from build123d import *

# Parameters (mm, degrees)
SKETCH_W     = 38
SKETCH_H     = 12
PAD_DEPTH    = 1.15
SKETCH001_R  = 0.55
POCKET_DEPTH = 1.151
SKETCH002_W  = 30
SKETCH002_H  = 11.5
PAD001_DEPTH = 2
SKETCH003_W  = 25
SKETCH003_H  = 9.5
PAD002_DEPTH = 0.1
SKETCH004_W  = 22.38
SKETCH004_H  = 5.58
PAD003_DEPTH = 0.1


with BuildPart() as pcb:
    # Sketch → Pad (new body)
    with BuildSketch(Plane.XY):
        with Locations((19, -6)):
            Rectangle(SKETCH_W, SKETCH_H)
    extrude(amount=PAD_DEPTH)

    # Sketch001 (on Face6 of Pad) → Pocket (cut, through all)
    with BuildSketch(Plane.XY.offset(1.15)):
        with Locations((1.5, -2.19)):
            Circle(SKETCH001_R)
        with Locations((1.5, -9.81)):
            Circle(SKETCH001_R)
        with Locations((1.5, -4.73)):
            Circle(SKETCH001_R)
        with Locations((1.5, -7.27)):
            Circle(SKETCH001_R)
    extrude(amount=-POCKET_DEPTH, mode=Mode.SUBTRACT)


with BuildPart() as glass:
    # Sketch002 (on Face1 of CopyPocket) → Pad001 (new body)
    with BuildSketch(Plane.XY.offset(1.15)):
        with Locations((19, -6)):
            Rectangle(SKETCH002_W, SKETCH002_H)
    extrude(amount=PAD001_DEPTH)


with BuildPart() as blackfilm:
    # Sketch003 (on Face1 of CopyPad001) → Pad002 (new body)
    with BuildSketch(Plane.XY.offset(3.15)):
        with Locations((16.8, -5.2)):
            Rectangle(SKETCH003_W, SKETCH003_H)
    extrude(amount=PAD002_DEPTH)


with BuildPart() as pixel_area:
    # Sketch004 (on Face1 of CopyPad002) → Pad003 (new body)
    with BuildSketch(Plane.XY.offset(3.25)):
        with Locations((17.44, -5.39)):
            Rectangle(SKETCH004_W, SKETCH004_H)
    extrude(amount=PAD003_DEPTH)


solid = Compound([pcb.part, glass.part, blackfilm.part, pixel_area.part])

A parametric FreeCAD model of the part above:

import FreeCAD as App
import Part
import Sketcher
from FreeCAD import Vector
Q = App.Units.Quantity

doc = App.newDocument("Part")
body = doc.addObject("PartDesign::Body", "Body")

# Sketch on XY plane
sketch1 = body.newObject("Sketcher::SketchObject", "Sketch")
sketch1.AttachmentSupport = (doc.getObject("XY_Plane"), [""])
sketch1.MapMode = "FlatFace"
sketch1.addGeometry(Part.LineSegment(Vector(0, 0, 0), Vector(0, -12, 0)), False)
sketch1.addGeometry(Part.LineSegment(Vector(0, -12, 0), Vector(38, -12, 0)), False)
sketch1.addGeometry(Part.LineSegment(Vector(38, -12, 0), Vector(38, 0, 0)), False)
sketch1.addGeometry(Part.LineSegment(Vector(38, 0, 0), Vector(0, 0, 0)), False)
sketch1.addConstraint(Sketcher.Constraint("Coincident", 0, 2, 1, 1))
sketch1.addConstraint(Sketcher.Constraint("Coincident", 1, 2, 2, 1))
sketch1.addConstraint(Sketcher.Constraint("Coincident", 2, 2, 3, 1))
sketch1.addConstraint(Sketcher.Constraint("Coincident", 3, 2, 0, 1))
sketch1.addConstraint(Sketcher.Constraint("Vertical", 0))
sketch1.addConstraint(Sketcher.Constraint("Horizontal", 1))
sketch1.addConstraint(Sketcher.Constraint("Vertical", 2))
sketch1.addConstraint(Sketcher.Constraint("Horizontal", 3))
sketch1.addConstraint(Sketcher.Constraint("Coincident", 3, 2, -1, 1))
sketch1.addConstraint(Sketcher.Constraint("DistanceX", 1, 1, 1, 2, Q("38 mm")))
sketch1.addConstraint(Sketcher.Constraint("DistanceY", 0, 2, 0, 1, Q("12 mm")))
pad1 = body.newObject("PartDesign::Pad", "Pad")
pad1.Profile = sketch1
pad1.Length = 1.15

# Sketch on XY plane
sketch2 = body.newObject("Sketcher::SketchObject", "Sketch001")
sketch2.AttachmentSupport = (doc.getObject("XY_Plane"), [""])
sketch2.MapMode = "FlatFace"
sketch2.AttachmentOffset = App.Placement(Vector(0, 0, 1.15), App.Rotation())
sketch2.addGeometry(Part.Circle(Vector(1.5, -2.2, 0), Vector(0, 0, 1), 0.6), False)
sketch2.addGeometry(Part.Circle(Vector(1.5, -9.8, 0), Vector(0, 0, 1), 0.6), False)
sketch2.addGeometry(Part.Circle(Vector(1.5, -4.7, 0), Vector(0, 0, 1), 0.6), False)
sketch2.addGeometry(Part.Circle(Vector(1.5, -7.3, 0), Vector(0, 0, 1), 0.6), False)
sketch2.addConstraint(Sketcher.Constraint("Equal", 0, 1))
sketch2.addConstraint(Sketcher.Constraint("Equal", 1, 2))
sketch2.addConstraint(Sketcher.Constraint("Equal", 2, 3))
sketch2.addConstraint(Sketcher.Constraint("Vertical", 0, 3, 1, 3))
sketch2.addConstraint(Sketcher.Constraint("Vertical", 1, 3, 2, 3))
sketch2.addConstraint(Sketcher.Constraint("Vertical", 2, 3, 3, 3))
sketch2.addConstraint(Sketcher.Constraint("Diameter", 0, Q("1.1 mm")))
sketch2.addConstraint(Sketcher.Constraint("DistanceX", -1, 1, 0, 3, Q("1.5 mm")))
sketch2.addConstraint(Sketcher.Constraint("DistanceY", 0, 3, -1, 1, Q("2.19 mm")))
sketch2.addConstraint(Sketcher.Constraint("DistanceY", 1, 3, -1, 1, Q("9.81 mm")))
sketch2.addConstraint(Sketcher.Constraint("DistanceY", 2, 3, -1, 1, Q("4.73 mm")))
sketch2.addConstraint(Sketcher.Constraint("DistanceY", 3, 3, -1, 1, Q("7.27 mm")))
pocket1 = body.newObject("PartDesign::Pocket", "Pocket")
pocket1.Profile = sketch2
pocket1.Type = "ThroughAll"
body2 = doc.addObject("PartDesign::Body", "Body001")

# Sketch on XY plane
sketch3 = body2.newObject("Sketcher::SketchObject", "Sketch002")
sketch3.AttachmentSupport = (doc.getObject("XY_Plane001"), [""])
sketch3.MapMode = "FlatFace"
sketch3.AttachmentOffset = App.Placement(Vector(0, 0, 1.15), App.Rotation())
sketch3.addGeometry(Part.LineSegment(Vector(4, 0, 0), Vector(4, -12, 0)), False)
sketch3.addGeometry(Part.LineSegment(Vector(4, -12, 0), Vector(34, -12, 0)), False)
sketch3.addGeometry(Part.LineSegment(Vector(34, -12, 0), Vector(34, 0, 0)), False)
sketch3.addGeometry(Part.LineSegment(Vector(34, 0, 0), Vector(4, 0, 0)), False)
sketch3.addConstraint(Sketcher.Constraint("Coincident", 0, 2, 1, 1))
sketch3.addConstraint(Sketcher.Constraint("Coincident", 1, 2, 2, 1))
sketch3.addConstraint(Sketcher.Constraint("Coincident", 2, 2, 3, 1))
sketch3.addConstraint(Sketcher.Constraint("Coincident", 3, 2, 0, 1))
sketch3.addConstraint(Sketcher.Constraint("Vertical", 0))
sketch3.addConstraint(Sketcher.Constraint("Horizontal", 1))
sketch3.addConstraint(Sketcher.Constraint("Vertical", 2))
sketch3.addConstraint(Sketcher.Constraint("Horizontal", 3))
sketch3.addConstraint(Sketcher.Constraint("DistanceX", 1, 1, 1, 2, Q("30 mm")))
sketch3.addConstraint(Sketcher.Constraint("DistanceY", 0, 2, 0, 1, Q("11.5 mm")))
sketch3.addConstraint(Sketcher.Constraint("DistanceX", -1, 1, 0, 2, Q("4 mm")))
sketch3.addConstraint(Sketcher.Constraint("DistanceY", 0, 2, -1, 1, Q("11.75 mm")))
pad2 = body2.newObject("PartDesign::Pad", "Pad001")
pad2.Profile = sketch3
pad2.Length = 2
body3 = doc.addObject("PartDesign::Body", "Body002")

# Sketch on XY plane
sketch4 = body3.newObject("Sketcher::SketchObject", "Sketch003")
sketch4.AttachmentSupport = (doc.getObject("XY_Plane002"), [""])
sketch4.MapMode = "FlatFace"
sketch4.AttachmentOffset = App.Placement(Vector(0, 0, 3.15), App.Rotation())
sketch4.addGeometry(Part.LineSegment(Vector(4, 0, 0), Vector(4, -10, 0)), False)
sketch4.addGeometry(Part.LineSegment(Vector(4, -10, 0), Vector(29, -10, 0)), False)
sketch4.addGeometry(Part.LineSegment(Vector(29, -10, 0), Vector(29, 0, 0)), False)
sketch4.addGeometry(Part.LineSegment(Vector(29, 0, 0), Vector(4, 0, 0)), False)
sketch4.addConstraint(Sketcher.Constraint("Coincident", 0, 2, 1, 1))
sketch4.addConstraint(Sketcher.Constraint("Coincident", 1, 2, 2, 1))
sketch4.addConstraint(Sketcher.Constraint("Coincident", 2, 2, 3, 1))
sketch4.addConstraint(Sketcher.Constraint("Coincident", 3, 2, 0, 1))
sketch4.addConstraint(Sketcher.Constraint("Vertical", 0))
sketch4.addConstraint(Sketcher.Constraint("Horizontal", 1))
sketch4.addConstraint(Sketcher.Constraint("Vertical", 2))
sketch4.addConstraint(Sketcher.Constraint("Horizontal", 3))
sketch4.addConstraint(Sketcher.Constraint("DistanceX", 1, 1, 1, 2, Q("25 mm")))
sketch4.addConstraint(Sketcher.Constraint("DistanceY", 0, 2, 0, 1, Q("9.5 mm")))
sketch4.addConstraint(Sketcher.Constraint("DistanceX", -1, 1, 0, 2, Q("4.3 mm")))
sketch4.addConstraint(Sketcher.Constraint("DistanceY", 0, 2, -1, 1, Q("9.95 mm")))
pad3 = body3.newObject("PartDesign::Pad", "Pad002")
pad3.Profile = sketch4
pad3.Length = 0.1
body4 = doc.addObject("PartDesign::Body", "Body003")

# Sketch on XY plane
sketch5 = body4.newObject("Sketcher::SketchObject", "Sketch004")
sketch5.AttachmentSupport = (doc.getObject("XY_Plane003"), [""])
sketch5.MapMode = "FlatFace"
sketch5.AttachmentOffset = App.Placement(Vector(0, 0, 3.25), App.Rotation())
sketch5.addGeometry(Part.LineSegment(Vector(6, -3, 0), Vector(6, -8, 0)), False)
sketch5.addGeometry(Part.LineSegment(Vector(6, -8, 0), Vector(29, -8, 0)), False)
sketch5.addGeometry(Part.LineSegment(Vector(29, -8, 0), Vector(29, -3, 0)), False)
sketch5.addGeometry(Part.LineSegment(Vector(29, -3, 0), Vector(6, -3, 0)), False)
sketch5.addConstraint(Sketcher.Constraint("Coincident", 0, 2, 1, 1))
sketch5.addConstraint(Sketcher.Constraint("Coincident", 1, 2, 2, 1))
sketch5.addConstraint(Sketcher.Constraint("Coincident", 2, 2, 3, 1))
sketch5.addConstraint(Sketcher.Constraint("Coincident", 3, 2, 0, 1))
sketch5.addConstraint(Sketcher.Constraint("Vertical", 0))
sketch5.addConstraint(Sketcher.Constraint("Horizontal", 1))
sketch5.addConstraint(Sketcher.Constraint("Vertical", 2))
sketch5.addConstraint(Sketcher.Constraint("Horizontal", 3))
sketch5.addConstraint(Sketcher.Constraint("DistanceX", 1, 1, 1, 2, Q("22.38 mm")))
sketch5.addConstraint(Sketcher.Constraint("DistanceY", 0, 2, 0, 1, Q("5.58 mm")))
sketch5.addConstraint(Sketcher.Constraint("DistanceY", 2, 2, -1, 1, Q("2.6 mm")))
sketch5.addConstraint(Sketcher.Constraint("DistanceX", -1, 1, 0, 2, Q("6.25 mm")))
pad4 = body4.newObject("PartDesign::Pad", "Pad003")
pad4.Profile = sketch5
pad4.Length = 0.1

doc.recompute()
